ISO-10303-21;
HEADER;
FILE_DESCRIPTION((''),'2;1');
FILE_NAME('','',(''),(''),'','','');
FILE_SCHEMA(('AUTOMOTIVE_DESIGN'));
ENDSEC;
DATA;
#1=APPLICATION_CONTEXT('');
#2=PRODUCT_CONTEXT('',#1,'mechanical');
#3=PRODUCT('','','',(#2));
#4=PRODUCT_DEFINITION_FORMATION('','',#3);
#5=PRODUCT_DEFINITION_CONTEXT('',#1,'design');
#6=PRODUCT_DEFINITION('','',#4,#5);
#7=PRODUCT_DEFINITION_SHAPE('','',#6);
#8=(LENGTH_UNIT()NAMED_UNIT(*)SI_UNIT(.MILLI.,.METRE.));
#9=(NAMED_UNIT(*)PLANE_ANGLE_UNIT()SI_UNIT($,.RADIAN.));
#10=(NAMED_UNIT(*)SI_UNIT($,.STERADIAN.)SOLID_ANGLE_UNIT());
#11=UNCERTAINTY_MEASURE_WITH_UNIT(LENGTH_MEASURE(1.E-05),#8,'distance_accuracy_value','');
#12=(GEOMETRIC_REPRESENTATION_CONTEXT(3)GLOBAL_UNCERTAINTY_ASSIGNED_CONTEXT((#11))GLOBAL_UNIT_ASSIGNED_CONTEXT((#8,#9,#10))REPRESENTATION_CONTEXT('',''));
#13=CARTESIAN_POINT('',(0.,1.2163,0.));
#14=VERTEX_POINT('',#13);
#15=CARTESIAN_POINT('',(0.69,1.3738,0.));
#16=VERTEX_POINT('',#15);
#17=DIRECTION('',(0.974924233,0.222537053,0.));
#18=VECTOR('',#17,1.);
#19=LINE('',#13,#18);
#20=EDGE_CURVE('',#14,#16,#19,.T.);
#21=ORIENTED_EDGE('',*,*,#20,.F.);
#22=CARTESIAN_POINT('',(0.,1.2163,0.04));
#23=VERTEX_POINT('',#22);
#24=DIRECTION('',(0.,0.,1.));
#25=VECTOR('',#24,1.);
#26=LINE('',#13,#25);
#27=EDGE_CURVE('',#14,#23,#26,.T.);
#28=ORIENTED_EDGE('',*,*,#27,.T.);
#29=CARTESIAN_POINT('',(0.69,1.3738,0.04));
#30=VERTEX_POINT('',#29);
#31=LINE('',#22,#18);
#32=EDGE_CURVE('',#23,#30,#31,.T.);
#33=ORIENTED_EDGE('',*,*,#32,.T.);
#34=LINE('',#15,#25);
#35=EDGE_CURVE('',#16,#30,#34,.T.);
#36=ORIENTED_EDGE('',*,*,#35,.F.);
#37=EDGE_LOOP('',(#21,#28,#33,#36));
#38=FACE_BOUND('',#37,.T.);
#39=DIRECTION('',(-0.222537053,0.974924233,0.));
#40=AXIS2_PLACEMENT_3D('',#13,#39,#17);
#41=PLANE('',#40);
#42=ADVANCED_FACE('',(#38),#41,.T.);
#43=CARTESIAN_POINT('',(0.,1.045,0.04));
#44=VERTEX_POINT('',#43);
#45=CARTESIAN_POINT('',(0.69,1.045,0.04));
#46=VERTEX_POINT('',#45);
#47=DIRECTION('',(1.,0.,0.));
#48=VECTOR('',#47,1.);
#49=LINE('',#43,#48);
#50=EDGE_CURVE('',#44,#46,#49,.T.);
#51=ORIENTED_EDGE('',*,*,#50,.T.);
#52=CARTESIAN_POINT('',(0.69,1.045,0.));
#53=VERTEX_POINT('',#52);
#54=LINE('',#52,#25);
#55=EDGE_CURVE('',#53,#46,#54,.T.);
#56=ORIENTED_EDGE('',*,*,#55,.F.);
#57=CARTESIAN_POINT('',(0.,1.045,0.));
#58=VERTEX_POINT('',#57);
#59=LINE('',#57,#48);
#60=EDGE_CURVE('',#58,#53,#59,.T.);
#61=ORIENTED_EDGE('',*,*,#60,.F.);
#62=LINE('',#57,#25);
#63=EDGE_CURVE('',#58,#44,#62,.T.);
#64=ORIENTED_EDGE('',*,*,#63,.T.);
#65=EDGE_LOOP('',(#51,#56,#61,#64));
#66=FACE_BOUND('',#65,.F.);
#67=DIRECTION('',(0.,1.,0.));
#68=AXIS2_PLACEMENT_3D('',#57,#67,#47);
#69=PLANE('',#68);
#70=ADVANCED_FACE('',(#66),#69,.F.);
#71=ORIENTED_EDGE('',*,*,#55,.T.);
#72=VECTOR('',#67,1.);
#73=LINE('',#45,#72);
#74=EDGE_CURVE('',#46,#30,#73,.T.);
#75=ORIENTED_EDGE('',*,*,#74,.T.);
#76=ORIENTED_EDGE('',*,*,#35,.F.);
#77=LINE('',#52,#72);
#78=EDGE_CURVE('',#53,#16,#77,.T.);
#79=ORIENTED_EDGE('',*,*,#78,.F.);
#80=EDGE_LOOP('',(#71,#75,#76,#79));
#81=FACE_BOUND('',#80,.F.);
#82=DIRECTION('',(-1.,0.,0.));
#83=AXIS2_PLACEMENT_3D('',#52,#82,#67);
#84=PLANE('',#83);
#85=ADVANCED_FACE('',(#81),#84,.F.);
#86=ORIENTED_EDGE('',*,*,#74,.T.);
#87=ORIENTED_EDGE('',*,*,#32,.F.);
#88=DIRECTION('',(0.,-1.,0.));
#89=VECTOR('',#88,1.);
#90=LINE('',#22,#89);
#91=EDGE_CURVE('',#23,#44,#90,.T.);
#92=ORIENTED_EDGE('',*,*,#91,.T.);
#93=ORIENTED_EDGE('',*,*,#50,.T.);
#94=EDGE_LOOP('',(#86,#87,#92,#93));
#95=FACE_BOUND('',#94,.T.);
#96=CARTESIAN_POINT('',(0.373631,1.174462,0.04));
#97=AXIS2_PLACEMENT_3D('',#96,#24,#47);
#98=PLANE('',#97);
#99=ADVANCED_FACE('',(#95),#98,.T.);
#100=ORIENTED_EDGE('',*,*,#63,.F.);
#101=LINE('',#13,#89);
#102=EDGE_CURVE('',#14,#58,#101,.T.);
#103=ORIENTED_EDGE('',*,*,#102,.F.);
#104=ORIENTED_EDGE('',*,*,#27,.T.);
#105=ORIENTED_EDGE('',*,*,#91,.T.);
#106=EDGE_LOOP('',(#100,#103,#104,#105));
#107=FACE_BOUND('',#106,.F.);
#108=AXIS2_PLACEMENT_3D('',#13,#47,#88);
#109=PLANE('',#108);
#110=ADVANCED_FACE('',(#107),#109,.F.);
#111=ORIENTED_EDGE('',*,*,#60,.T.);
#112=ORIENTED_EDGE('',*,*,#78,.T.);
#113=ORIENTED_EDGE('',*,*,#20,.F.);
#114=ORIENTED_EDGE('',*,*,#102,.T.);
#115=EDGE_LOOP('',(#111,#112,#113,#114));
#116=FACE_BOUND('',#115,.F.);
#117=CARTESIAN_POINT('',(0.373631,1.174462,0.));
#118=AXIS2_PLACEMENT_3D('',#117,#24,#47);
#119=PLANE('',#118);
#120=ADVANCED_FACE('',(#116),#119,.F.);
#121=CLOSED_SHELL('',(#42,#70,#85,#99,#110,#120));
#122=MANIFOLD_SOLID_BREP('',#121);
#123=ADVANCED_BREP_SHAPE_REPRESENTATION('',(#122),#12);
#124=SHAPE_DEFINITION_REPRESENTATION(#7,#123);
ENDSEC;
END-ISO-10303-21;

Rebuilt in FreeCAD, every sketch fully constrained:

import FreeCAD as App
import Part
import Sketcher
from FreeCAD import Vector

doc = App.newDocument("Part")
body = doc.addObject("PartDesign::Body", "Body")

# Sketch on XY plane
sketch1 = body.newObject("Sketcher::SketchObject", "Sketch")
sketch1.AttachmentSupport = (doc.getObject("XY_Plane"), [""])
sketch1.MapMode = "FlatFace"
sketch1.addGeometry(Part.LineSegment(Vector(0, 1.22, 0), Vector(0, 1.04, 0)), False)
sketch1.addGeometry(Part.LineSegment(Vector(0, 1.04, 0), Vector(0.69, 1.04, 0)), False)
sketch1.addGeometry(Part.LineSegment(Vector(0.69, 1.04, 0), Vector(0.69, 1.37, 0)), False)
sketch1.addGeometry(Part.LineSegment(Vector(0.69, 1.37, 0), Vector(0, 1.22, 0)), False)
sketch1.addConstraint(Sketcher.Constraint("Coincident", 0, 2, 1, 1))
sketch1.addConstraint(Sketcher.Constraint("Coincident", 1, 2, 2, 1))
sketch1.addConstraint(Sketcher.Constraint("Coincident", 2, 2, 3, 1))
sketch1.addConstraint(Sketcher.Constraint("Coincident", 3, 2, 0, 1))
sketch1.addConstraint(Sketcher.Constraint("Vertical", 0))
sketch1.addConstraint(Sketcher.Constraint("Horizontal", 1))
sketch1.addConstraint(Sketcher.Constraint("Vertical", 2))
sketch1.addConstraint(Sketcher.Constraint("PointOnObject", 0, 2, -2))
sketch1.addConstraint(Sketcher.Constraint("DistanceX", 1, 1, 1, 2, 0.69))
sketch1.addConstraint(Sketcher.Constraint("DistanceY", 0, 2, 0, 1, 0.1713))
sketch1.addConstraint(Sketcher.Constraint("DistanceY", 2, 1, 2, 2, 0.3288))
sketch1.addConstraint(Sketcher.Constraint("DistanceY", -1, 1, 0, 2, 1.045))
pad1 = body.newObject("PartDesign::Pad", "Pad")
pad1.Profile = sketch1
pad1.Length = 0.04

doc.recompute()
